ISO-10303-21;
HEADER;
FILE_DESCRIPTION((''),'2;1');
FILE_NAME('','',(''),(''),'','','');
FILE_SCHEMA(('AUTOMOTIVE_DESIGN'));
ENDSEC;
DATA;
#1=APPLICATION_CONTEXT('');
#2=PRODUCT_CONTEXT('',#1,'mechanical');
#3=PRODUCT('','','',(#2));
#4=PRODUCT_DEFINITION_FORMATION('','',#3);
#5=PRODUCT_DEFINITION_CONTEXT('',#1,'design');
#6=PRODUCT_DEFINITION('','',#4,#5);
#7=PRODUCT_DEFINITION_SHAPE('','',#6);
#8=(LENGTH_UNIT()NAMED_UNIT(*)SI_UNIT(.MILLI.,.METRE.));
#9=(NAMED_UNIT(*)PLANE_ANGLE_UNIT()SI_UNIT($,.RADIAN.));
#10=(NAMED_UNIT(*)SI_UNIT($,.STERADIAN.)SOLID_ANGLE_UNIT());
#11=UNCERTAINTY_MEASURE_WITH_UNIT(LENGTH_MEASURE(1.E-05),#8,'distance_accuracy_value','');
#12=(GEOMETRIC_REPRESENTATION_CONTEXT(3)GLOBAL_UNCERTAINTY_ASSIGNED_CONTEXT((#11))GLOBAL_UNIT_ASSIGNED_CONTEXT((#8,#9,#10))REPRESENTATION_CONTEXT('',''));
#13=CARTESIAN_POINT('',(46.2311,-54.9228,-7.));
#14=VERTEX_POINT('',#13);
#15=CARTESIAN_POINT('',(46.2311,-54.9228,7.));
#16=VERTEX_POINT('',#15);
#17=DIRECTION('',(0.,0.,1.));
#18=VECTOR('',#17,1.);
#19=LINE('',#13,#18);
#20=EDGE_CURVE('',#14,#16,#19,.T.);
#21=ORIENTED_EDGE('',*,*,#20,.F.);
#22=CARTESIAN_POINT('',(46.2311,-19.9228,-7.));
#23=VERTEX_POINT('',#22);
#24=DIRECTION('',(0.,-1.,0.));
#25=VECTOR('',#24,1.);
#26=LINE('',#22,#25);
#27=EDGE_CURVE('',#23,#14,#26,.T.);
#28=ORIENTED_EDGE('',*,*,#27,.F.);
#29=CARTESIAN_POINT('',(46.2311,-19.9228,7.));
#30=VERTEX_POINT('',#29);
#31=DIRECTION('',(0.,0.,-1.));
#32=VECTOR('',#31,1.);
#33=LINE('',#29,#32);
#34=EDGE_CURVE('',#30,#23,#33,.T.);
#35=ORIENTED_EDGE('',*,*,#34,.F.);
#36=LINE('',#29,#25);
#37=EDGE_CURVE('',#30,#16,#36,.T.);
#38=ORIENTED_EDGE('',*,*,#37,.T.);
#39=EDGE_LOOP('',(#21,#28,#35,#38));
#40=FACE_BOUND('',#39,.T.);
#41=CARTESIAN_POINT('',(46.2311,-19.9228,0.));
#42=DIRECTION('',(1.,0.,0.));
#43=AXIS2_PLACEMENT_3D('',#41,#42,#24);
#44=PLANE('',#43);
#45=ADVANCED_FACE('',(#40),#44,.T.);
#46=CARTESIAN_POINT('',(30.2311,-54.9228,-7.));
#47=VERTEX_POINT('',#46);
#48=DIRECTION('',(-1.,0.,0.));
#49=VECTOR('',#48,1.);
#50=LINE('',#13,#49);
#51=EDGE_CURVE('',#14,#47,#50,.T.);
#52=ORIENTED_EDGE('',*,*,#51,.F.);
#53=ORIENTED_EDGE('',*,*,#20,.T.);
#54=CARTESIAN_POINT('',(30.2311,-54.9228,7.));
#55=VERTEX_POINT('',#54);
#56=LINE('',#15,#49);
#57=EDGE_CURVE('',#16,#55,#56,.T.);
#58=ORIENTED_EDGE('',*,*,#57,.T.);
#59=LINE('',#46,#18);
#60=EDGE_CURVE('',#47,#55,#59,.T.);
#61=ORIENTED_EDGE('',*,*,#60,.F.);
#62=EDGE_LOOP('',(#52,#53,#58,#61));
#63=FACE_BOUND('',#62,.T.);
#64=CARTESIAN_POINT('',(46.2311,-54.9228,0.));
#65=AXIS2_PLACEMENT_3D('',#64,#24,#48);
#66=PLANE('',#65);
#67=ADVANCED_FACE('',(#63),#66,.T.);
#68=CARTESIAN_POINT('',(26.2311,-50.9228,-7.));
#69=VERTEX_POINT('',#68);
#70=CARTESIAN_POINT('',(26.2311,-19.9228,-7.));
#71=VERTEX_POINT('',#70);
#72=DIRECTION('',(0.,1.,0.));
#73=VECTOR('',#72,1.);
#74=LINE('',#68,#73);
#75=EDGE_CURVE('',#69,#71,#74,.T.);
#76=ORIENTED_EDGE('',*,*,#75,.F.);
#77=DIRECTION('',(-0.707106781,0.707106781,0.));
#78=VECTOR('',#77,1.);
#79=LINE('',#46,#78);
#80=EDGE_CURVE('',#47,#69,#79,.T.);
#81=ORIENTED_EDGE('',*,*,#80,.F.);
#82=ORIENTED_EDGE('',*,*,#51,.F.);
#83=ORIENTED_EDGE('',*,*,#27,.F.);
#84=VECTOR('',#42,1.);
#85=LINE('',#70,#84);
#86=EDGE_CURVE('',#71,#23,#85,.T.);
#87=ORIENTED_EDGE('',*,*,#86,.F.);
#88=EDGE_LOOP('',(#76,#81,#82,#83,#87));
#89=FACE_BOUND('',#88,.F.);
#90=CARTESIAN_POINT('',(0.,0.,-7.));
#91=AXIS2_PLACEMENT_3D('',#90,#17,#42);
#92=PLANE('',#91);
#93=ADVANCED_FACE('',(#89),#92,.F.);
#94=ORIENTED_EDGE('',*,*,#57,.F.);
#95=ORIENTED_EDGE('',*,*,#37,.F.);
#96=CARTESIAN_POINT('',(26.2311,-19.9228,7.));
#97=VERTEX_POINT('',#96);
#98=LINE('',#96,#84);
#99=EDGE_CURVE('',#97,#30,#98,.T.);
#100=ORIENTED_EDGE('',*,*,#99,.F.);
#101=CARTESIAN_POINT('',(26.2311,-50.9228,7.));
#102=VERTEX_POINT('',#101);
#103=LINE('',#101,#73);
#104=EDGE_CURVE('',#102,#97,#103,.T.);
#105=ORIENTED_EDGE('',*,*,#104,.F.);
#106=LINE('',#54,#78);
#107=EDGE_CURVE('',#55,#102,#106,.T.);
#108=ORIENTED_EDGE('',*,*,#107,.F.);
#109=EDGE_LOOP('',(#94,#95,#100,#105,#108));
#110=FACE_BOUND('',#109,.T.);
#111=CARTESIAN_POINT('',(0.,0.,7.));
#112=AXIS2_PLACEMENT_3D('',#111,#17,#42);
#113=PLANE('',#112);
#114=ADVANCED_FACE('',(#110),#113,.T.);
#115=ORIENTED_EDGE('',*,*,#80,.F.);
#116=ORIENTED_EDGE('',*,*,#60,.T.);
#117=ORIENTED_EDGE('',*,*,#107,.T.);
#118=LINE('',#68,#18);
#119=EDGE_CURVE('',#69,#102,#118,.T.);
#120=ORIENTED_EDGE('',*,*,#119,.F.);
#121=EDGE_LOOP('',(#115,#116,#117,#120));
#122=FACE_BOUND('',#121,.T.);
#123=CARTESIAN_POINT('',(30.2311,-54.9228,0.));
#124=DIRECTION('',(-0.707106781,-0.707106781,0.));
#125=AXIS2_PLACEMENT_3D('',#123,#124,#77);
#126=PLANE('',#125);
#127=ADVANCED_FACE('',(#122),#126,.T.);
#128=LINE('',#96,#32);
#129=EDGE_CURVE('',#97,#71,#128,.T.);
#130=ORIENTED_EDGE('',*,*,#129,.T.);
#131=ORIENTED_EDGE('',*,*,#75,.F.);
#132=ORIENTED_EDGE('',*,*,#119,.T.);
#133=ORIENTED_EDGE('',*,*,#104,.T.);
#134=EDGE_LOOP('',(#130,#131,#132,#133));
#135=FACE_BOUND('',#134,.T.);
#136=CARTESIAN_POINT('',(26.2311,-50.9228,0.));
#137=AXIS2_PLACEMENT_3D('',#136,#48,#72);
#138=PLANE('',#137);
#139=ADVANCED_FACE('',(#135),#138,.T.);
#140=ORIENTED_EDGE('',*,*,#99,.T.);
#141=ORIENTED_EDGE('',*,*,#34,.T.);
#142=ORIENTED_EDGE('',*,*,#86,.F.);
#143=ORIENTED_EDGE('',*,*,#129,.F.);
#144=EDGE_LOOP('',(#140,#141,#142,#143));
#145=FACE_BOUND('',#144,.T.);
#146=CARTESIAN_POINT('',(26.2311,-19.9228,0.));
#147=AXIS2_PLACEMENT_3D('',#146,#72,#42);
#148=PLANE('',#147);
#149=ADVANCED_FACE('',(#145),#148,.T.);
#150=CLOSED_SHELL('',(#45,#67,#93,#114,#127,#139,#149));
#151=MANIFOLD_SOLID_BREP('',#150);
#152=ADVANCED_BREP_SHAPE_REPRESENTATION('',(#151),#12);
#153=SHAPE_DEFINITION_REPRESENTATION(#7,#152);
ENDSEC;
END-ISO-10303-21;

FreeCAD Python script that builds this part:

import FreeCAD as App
import Part
import Sketcher
from FreeCAD import Vector
Q = App.Units.Quantity


def add_polygon(sketch, points):
    """Adds a closed chain of lines whose ends are joined by coincident constraints."""
    first, n = sketch.GeometryCount, len(points)
    for a, b in zip(points, points[1:] + points[:1]):
        sketch.addGeometry(Part.LineSegment(App.Vector(*a, 0), App.Vector(*b, 0)), False)
    for i in range(n):
        sketch.addConstraint(Sketcher.Constraint("Coincident", first + i, 2, first + (i + 1) % n, 1))

doc = App.newDocument("Part")
body = doc.addObject("PartDesign::Body", "Body")

# Sketch on XY plane
sketch1 = body.newObject("Sketcher::SketchObject", "Sketch")
sketch1.AttachmentSupport = (doc.getObject("XY_Plane"), [""])
sketch1.MapMode = "FlatFace"
add_polygon(sketch1, [(26, -20), (26, -51), (30, -55), (46, -55), (46, -20)])  # lines 0-4
sketch1.addConstraint(Sketcher.Constraint("Vertical", 0))
sketch1.addConstraint(Sketcher.Constraint("Horizontal", 2))
sketch1.addConstraint(Sketcher.Constraint("Vertical", 3))
sketch1.addConstraint(Sketcher.Constraint("Horizontal", 4))
sketch1.addConstraint(Sketcher.Constraint("DistanceX", 4, 2, 4, 1, 20.0))
sketch1.addConstraint(Sketcher.Constraint("DistanceY", 3, 1, 3, 2, 35.0))
sketch1.addConstraint(Sketcher.Constraint("Angle", 1, Q("-45 deg")))
sketch1.addConstraint(Sketcher.Constraint("DistanceX", 0, 2, 1, 2, 4.0))
sketch1.addConstraint(Sketcher.Constraint("DistanceX", -1, 1, 0, 2, 26.231))
sketch1.addConstraint(Sketcher.Constraint("DistanceY", 0, 2, -1, 1, 50.9228))
pad1 = body.newObject("PartDesign::Pad", "Pad")
pad1.Profile = sketch1
pad1.Length = 14
pad1.Midplane = True

doc.recompute()
